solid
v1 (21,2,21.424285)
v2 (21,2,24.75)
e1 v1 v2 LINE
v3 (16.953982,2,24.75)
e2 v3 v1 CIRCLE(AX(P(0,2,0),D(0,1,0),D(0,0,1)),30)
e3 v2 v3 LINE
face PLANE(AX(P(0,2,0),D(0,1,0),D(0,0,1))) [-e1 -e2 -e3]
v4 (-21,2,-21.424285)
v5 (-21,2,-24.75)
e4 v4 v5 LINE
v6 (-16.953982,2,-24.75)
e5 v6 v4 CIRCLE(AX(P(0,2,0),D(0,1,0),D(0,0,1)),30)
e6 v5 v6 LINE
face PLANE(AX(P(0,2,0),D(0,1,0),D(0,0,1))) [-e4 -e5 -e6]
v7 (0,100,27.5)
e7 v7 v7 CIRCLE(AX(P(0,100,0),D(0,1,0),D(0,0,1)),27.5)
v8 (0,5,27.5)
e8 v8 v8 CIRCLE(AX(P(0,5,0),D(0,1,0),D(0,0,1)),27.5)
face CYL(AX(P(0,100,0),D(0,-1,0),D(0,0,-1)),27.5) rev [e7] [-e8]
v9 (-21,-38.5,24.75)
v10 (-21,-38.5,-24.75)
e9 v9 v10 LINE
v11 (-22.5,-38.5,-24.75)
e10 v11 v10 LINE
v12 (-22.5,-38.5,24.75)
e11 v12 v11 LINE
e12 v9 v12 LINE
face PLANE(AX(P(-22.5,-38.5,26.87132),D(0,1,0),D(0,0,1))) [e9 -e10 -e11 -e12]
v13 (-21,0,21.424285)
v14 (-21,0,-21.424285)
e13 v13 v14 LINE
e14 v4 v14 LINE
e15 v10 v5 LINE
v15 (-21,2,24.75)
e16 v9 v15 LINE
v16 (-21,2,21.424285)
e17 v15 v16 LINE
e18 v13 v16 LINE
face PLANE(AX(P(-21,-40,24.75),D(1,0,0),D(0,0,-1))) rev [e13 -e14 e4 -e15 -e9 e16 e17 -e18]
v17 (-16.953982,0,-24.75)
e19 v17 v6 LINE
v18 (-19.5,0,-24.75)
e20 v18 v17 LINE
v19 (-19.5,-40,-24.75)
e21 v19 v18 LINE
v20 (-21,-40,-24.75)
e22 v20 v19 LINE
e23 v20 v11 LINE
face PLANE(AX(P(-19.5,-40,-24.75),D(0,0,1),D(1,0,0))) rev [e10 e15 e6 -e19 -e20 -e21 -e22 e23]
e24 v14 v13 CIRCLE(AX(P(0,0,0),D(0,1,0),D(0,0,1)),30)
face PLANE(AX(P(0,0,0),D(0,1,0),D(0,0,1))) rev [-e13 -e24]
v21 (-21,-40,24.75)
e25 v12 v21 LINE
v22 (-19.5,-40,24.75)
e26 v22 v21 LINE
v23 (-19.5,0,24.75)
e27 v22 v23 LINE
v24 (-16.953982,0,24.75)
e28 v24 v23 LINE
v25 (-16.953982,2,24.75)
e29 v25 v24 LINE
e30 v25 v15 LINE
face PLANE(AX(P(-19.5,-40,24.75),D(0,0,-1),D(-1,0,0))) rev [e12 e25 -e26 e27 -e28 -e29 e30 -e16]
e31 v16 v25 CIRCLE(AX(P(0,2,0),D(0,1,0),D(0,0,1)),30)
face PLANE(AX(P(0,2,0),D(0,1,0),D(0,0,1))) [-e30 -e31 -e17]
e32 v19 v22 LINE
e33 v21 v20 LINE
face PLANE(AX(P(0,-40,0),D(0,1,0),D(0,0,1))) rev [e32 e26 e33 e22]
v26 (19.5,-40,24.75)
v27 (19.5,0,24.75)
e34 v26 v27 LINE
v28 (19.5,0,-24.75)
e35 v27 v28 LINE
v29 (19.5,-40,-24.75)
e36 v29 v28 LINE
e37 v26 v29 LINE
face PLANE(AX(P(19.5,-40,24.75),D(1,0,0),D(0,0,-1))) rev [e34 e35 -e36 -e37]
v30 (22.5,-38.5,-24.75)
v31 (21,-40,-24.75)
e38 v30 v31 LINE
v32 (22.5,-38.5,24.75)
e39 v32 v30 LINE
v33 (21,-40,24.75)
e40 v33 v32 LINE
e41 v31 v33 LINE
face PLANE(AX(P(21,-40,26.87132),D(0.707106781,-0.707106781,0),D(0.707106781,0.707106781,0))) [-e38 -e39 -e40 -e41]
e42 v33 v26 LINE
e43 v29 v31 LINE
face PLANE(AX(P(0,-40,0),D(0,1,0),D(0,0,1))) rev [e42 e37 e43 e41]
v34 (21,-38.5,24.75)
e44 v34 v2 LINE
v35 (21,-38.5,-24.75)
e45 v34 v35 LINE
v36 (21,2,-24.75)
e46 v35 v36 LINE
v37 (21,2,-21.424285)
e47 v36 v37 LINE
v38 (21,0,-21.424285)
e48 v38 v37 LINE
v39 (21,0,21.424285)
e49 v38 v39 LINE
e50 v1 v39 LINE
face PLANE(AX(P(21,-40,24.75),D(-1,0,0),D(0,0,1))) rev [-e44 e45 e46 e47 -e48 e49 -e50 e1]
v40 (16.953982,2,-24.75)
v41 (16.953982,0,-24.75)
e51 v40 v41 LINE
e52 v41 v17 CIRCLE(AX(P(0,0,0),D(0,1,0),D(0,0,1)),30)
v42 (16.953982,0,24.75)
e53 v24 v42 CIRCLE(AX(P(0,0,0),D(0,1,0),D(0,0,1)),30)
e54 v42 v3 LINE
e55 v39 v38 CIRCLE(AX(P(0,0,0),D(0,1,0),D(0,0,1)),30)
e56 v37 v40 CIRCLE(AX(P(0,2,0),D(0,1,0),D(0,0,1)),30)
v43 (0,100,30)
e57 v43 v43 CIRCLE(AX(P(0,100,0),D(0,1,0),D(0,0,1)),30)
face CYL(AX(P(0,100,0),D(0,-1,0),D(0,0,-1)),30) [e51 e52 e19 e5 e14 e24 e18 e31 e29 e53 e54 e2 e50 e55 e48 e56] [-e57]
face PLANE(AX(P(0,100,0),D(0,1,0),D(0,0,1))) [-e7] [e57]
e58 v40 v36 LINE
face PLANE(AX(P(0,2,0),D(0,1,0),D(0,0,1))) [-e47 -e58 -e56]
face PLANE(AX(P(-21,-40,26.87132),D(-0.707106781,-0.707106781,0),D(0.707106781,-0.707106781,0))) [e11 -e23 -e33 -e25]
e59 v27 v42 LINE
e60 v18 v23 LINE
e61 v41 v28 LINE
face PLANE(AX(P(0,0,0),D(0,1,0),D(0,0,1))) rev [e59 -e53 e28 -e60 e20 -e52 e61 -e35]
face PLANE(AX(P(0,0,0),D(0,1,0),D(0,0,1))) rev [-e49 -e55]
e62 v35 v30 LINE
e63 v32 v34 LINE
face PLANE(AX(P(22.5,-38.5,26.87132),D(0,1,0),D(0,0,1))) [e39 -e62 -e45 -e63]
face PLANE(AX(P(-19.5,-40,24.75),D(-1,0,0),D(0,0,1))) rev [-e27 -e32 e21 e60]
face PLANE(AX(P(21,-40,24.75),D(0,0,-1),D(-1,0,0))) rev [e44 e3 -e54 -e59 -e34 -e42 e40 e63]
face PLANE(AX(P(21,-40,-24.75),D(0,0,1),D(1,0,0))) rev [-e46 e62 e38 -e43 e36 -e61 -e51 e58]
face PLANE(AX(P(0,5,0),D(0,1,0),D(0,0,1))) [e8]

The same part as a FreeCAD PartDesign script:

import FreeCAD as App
import Part
import Sketcher
from FreeCAD import Vector


def add_polygon(sketch, points):
    """Adds a closed chain of lines whose ends are joined by coincident constraints."""
    first, n = sketch.GeometryCount, len(points)
    for a, b in zip(points, points[1:] + points[:1]):
        sketch.addGeometry(Part.LineSegment(App.Vector(*a, 0), App.Vector(*b, 0)), False)
    for i in range(n):
        sketch.addConstraint(Sketcher.Constraint("Coincident", first + i, 2, first + (i + 1) % n, 1))

doc = App.newDocument("Part")
body = doc.addObject("PartDesign::Body", "Body")

# Sketch on XZ plane
sketch1 = doc.addObject("Sketcher::SketchObject", "Sketch")
body.addObject(sketch1)
sketch1.AttachmentSupport = (doc.XZ_Plane, [""])
sketch1.MapMode = "FlatFace"
sketch1.addGeometry([
    Part.Circle(Vector(0, 0, 0), Vector(0, 0, 1), 30),
    Part.Circle(Vector(0, 0, 0), Vector(0, 0, 1), 28),
], False)
sketch1.addConstraint([
    Sketcher.Constraint("Coincident", 0, 3, -1, 1),
    Sketcher.Constraint("Coincident", 1, 3, -1, 1),
    Sketcher.Constraint("Diameter", 0, 60.0),
    Sketcher.Constraint("Diameter", 1, 55.0),
])
pad1 = doc.addObject("PartDesign::Pad", "Pad")
body.addObject(pad1)
pad1.Profile = sketch1
pad1.Length = 100
pad1.Reversed = True

# Sketch on XZ plane
sketch2 = doc.addObject("Sketcher::SketchObject", "Sketch001")
body.addObject(sketch2)
sketch2.AttachmentSupport = (doc.XZ_Plane, [""])
sketch2.MapMode = "FlatFace"
sketch2.addGeometry(Part.Circle(Vector(0, 0, 0), Vector(0, 0, 1), 28), False)
sketch2.addConstraint([
    Sketcher.Constraint("Coincident", 0, 3, -1, 1),
    Sketcher.Constraint("Diameter", 0, 55.0),
])
pad2 = doc.addObject("PartDesign::Pad", "Pad001")
body.addObject(pad2)
pad2.Profile = sketch2
pad2.Length = 5
pad2.Reversed = True

# Sketch on XZ plane
sketch3 = doc.addObject("Sketcher::SketchObject", "Sketch002")
body.addObject(sketch3)
sketch3.AttachmentSupport = (doc.XZ_Plane, [""])
sketch3.MapMode = "FlatFace"
add_polygon(sketch3, [(-21, 24.8), (-21, -24.8), (-19.5, -24.8), (-19.5, 24.8)])  # lines 0-3
add_polygon(sketch3, [(19.5, 24.8), (19.5, -24.8), (21, -24.8), (21, 24.8)])  # lines 4-7
sketch3.addConstraint([
    Sketcher.Constraint("Vertical", 0),
    Sketcher.Constraint("Horizontal", 1),
    Sketcher.Constraint("Vertical", 2),
    Sketcher.Constraint("Horizontal", 3),
    Sketcher.Constraint("Vertical", 4),
    Sketcher.Constraint("Horizontal", 5),
    Sketcher.Constraint("Vertical", 6),
    Sketcher.Constraint("Horizontal", 7),
    Sketcher.Constraint("Symmetric", 2, 2, 4, 2, -1, 1),
    Sketcher.Constraint("Symmetric", 0, 2, 6, 2, -1, 1),
    Sketcher.Constraint("Horizontal", 1, 2, 4, 2),
    Sketcher.Constraint("DistanceX", 1, 1, 1, 2, 1.5),
    Sketcher.Constraint("DistanceY", 0, 2, 0, 1, 49.5),
    Sketcher.Constraint("DistanceX", 0, 2, -1, 1, 21.0),
])
pad3 = doc.addObject("PartDesign::Pad", "Pad002")
body.addObject(pad3)
pad3.Profile = sketch3
pad3.Length = 40

# Sketch on XZ plane
sketch4 = doc.addObject("Sketcher::SketchObject", "Sketch003")
body.addObject(sketch4)
sketch4.AttachmentSupport = (doc.XZ_Plane, [""])
sketch4.MapMode = "FlatFace"
add_polygon(sketch4, [(-21, 25), (-21, -25), (21, -25), (21, 25)])  # lines 0-3
sketch4.addConstraint([
    Sketcher.Constraint("Vertical", 0),
    Sketcher.Constraint("Horizontal", 1),
    Sketcher.Constraint("Vertical", 2),
    Sketcher.Constraint("Horizontal", 3),
    Sketcher.Constraint("Symmetric", 0, 2, 2, 2, -1, 1),
    Sketcher.Constraint("DistanceX", 1, 1, 1, 2, 42.0),
    Sketcher.Constraint("DistanceY", 0, 2, 0, 1, 49.5),
])
pad4 = doc.addObject("PartDesign::Pad", "Pad003")
body.addObject(pad4)
pad4.Profile = sketch4
pad4.Length = 2
pad4.Reversed = True

# Sketch on XY plane
sketch5 = doc.addObject("Sketcher::SketchObject", "Sketch004")
body.addObject(sketch5)
sketch5.AttachmentSupport = (doc.XY_Plane, [""])
sketch5.MapMode = "FlatFace"
sketch5.AttachmentOffset = App.Placement(Vector(0, 0, -24.75), App.Rotation())
add_polygon(sketch5, [(-21, -40), (-22.5, -38.5), (-21, -38.5)])  # lines 0-2
add_polygon(sketch5, [(22.5, -38.5), (21, -40), (21, -38.5)])  # lines 3-5
sketch5.addConstraint([
    Sketcher.Constraint("Horizontal", 1),
    Sketcher.Constraint("Vertical", 2),
    Sketcher.Constraint("Vertical", 4),
    Sketcher.Constraint("Horizontal", 5),
    Sketcher.Constraint("Symmetric", 2, 2, 3, 2, -2),
    Sketcher.Constraint("Symmetric", 0, 2, 5, 2, -2),
    Sketcher.Constraint("Perpendicular", 0, 3),
    Sketcher.Constraint("DistanceX", 1, 1, 1, 2, 1.5),
    Sketcher.Constraint("DistanceX", 1, 2, -1, 1, 21.0),
    Sketcher.Constraint("DistanceY", 2, 2, -1, 1, 40.0),
])
pad5 = doc.addObject("PartDesign::Pad", "Pad004")
body.addObject(pad5)
pad5.Profile = sketch5
pad5.Length = 49.5

doc.recompute()
